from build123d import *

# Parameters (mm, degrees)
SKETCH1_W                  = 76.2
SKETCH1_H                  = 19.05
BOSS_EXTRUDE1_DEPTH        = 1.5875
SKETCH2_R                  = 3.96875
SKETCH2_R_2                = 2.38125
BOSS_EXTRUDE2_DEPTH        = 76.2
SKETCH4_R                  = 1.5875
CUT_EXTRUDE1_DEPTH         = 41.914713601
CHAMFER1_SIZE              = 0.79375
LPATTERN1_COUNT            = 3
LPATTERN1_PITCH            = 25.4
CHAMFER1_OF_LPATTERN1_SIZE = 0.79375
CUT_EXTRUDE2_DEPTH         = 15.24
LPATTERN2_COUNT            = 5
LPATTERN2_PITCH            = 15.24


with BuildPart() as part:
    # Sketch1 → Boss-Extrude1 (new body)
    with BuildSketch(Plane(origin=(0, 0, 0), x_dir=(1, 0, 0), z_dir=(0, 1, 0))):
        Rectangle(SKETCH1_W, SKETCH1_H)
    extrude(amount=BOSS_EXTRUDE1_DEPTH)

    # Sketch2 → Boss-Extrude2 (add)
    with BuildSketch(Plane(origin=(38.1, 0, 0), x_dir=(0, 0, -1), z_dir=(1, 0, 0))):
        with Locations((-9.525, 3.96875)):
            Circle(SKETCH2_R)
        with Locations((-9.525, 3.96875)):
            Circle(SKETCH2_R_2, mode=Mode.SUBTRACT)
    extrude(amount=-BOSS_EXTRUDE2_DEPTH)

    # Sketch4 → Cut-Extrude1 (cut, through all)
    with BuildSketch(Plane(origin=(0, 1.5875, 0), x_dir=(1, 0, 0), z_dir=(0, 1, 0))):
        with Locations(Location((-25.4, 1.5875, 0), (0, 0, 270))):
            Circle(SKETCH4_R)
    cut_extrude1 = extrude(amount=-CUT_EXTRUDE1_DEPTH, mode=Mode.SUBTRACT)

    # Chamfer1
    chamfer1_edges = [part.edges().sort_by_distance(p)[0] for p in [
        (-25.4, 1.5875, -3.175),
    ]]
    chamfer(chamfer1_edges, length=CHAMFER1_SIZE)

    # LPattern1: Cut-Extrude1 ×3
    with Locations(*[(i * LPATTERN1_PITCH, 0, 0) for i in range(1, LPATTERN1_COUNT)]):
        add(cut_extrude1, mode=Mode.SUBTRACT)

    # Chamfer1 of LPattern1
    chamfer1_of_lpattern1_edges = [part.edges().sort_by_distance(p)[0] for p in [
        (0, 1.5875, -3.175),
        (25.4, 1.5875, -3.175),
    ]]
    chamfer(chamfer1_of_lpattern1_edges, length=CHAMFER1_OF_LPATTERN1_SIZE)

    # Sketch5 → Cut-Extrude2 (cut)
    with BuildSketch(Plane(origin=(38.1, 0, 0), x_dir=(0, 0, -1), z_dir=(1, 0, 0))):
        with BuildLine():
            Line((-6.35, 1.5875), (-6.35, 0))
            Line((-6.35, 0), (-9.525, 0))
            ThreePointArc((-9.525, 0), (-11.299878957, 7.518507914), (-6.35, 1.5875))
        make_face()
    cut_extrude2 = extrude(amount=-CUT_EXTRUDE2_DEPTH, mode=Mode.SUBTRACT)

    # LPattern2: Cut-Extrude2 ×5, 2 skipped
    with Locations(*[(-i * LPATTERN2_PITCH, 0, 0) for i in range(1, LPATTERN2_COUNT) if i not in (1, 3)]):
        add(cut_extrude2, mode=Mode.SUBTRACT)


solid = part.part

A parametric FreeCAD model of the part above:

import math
import FreeCAD as App
import Part
import Sketcher
from FreeCAD import Vector
Q = App.Units.Quantity


def edges_at(feature, points):
    """Names of the edges that pass closest to the given points."""
    edges = feature.Shape.Edges
    near = lambda p: min(range(len(edges)), key=lambda i: edges[i].distToShape(Part.Vertex(*p))[0])
    return sorted({f"Edge{near(p) + 1}" for p in points})


def add_polygon(sketch, points):
    """Adds a closed chain of lines whose ends are joined by coincident constraints."""
    first, n = sketch.GeometryCount, len(points)
    for a, b in zip(points, points[1:] + points[:1]):
        sketch.addGeometry(Part.LineSegment(App.Vector(*a, 0), App.Vector(*b, 0)), False)
    for i in range(n):
        sketch.addConstraint(Sketcher.Constraint("Coincident", first + i, 2, first + (i + 1) % n, 1))

doc = App.newDocument("Part")
body = doc.addObject("PartDesign::Body", "Body")

# Sketch on XZ plane
sketch1 = doc.addObject("Sketcher::SketchObject", "Sketch")
body.addObject(sketch1)
sketch1.AttachmentSupport = (doc.XZ_Plane, [""])
sketch1.MapMode = "FlatFace"
add_polygon(sketch1, [(-38, -10), (-38, 10), (38, 10), (38, -10)])  # lines 0-3
sketch1.addConstraint([
    Sketcher.Constraint("Vertical", 0),
    Sketcher.Constraint("Horizontal", 1),
    Sketcher.Constraint("Vertical", 2),
    Sketcher.Constraint("Horizontal", 3),
    Sketcher.Constraint("Symmetric", 0, 2, 2, 2, -1, 1),
    Sketcher.Constraint("DistanceX", 1, 1, 1, 2, Q("3 in")),
    Sketcher.Constraint("DistanceY", 0, 1, 0, 2, Q("0.75 in")),
])
pad1 = doc.addObject("PartDesign::Pad", "Pad")
body.addObject(pad1)
pad1.Profile = sketch1
pad1.Length = Q("0.0625 in")
pad1.Reversed = True

# Sketch on YZ plane
sketch2 = doc.addObject("Sketcher::SketchObject", "Sketch001")
body.addObject(sketch2)
sketch2.AttachmentSupport = (doc.YZ_Plane, [""])
sketch2.MapMode = "FlatFace"
sketch2.AttachmentOffset = App.Placement(Vector(0, 0, 1.5 * 25.4), App.Rotation())
sketch2.addGeometry([
    Part.Circle(Vector(4, 9.5, 0), Vector(0, 0, 1), 4),
    Part.Circle(Vector(4, 9.5, 0), Vector(0, 0, 1), 2.4),
], False)
sketch2.addConstraint([
    Sketcher.Constraint("Coincident", 1, 3, 0, 3),
    Sketcher.Constraint("Diameter", 0, Q("0.3125 in")),
    Sketcher.Constraint("Diameter", 1, Q("0.1875 in")),
    Sketcher.Constraint("DistanceX", -1, 1, 0, 3, Q("0.15625 in")),
    Sketcher.Constraint("DistanceY", -1, 1, 0, 3, Q("0.375 in")),
])
pad2 = doc.addObject("PartDesign::Pad", "Pad001")
body.addObject(pad2)
pad2.Profile = sketch2
pad2.Length = Q("3 in")
pad2.Reversed = True

# Sketch on XZ plane
sketch3 = doc.addObject("Sketcher::SketchObject", "Sketch002")
body.addObject(sketch3)
sketch3.AttachmentSupport = (doc.XZ_Plane, [""])
sketch3.MapMode = "FlatFace"
sketch3.AttachmentOffset = App.Placement(Vector(0, 0, -0.0625 * 25.4), App.Rotation())
sketch3.addGeometry(Part.Circle(Vector(-25.4, -1.6, 0), Vector(0, 0, 1), 1.6), False)
sketch3.addConstraint([
    Sketcher.Constraint("Diameter", 0, Q("0.125 in")),
    Sketcher.Constraint("DistanceX", 0, 3, -1, 1, Q("1 in")),
    Sketcher.Constraint("DistanceY", 0, 3, -1, 1, Q("0.0625 in")),
])
pocket1 = doc.addObject("PartDesign::Pocket", "Pocket")
body.addObject(pocket1)
pocket1.Profile = sketch3
pocket1.Type = "ThroughAll"
pocket1.Reversed = True
doc.recompute()

chamfer = doc.addObject("PartDesign::Chamfer", "Chamfer")
body.addObject(chamfer)
chamfer.Base = (pocket1, edges_at(pocket1, [(-25.4, 1.587, -3.175)]))
chamfer.Size = Q("0.03125 in")
doc.recompute()

linearpattern = doc.addObject("PartDesign::LinearPattern", "LinearPattern")
body.addObject(linearpattern)
linearpattern.Originals = [pocket1]
linearpattern.Direction = (doc.X_Axis, [""])
linearpattern.Mode = "offset"
linearpattern.Offset = Q("1 in")
linearpattern.Occurrences = 3
body.Tip = linearpattern
doc.recompute()

chamfer2 = doc.addObject("PartDesign::Chamfer", "Chamfer001")
body.addObject(chamfer2)
chamfer2.Base = (linearpattern, edges_at(linearpattern, [(0, 1.587, -3.175), (25.4, 1.587, -3.175)]))
chamfer2.Size = Q("0.03125 in")

# Sketch on YZ plane
sketch4 = doc.addObject("Sketcher::SketchObject", "Sketch003")
body.addObject(sketch4)
sketch4.AttachmentSupport = (doc.YZ_Plane, [""])
sketch4.MapMode = "FlatFace"
sketch4.AttachmentOffset = App.Placement(Vector(0, 0, 1.5 * 25.4), App.Rotation())
sketch4.addGeometry([
    Part.LineSegment(Vector(0, 6.3, 0), Vector(1.6, 6.3, 0)),
    Part.ArcOfCircle(Part.Circle(Vector(4, 9.5, 0), Vector(0, 0, 1), 4), math.radians(-127), math.radians(180)),
    Part.LineSegment(Vector(0, 9.5, 0), Vector(0, 6.3, 0)),
], False)
sketch4.addConstraint([
    Sketcher.Constraint("Coincident", 0, 2, 1, 1),
    Sketcher.Constraint("Tangent", 1, 2, 2, 1),
    Sketcher.Constraint("Coincident", 2, 2, 0, 1),
    Sketcher.Constraint("Horizontal", 0),
    Sketcher.Constraint("Vertical", 2),
    Sketcher.Constraint("PointOnObject", 1, 2, -2),
    Sketcher.Constraint("Radius", 1, Q("0.15625 in")),
    Sketcher.Constraint("DistanceX", 0, 1, 0, 2, Q("0.0625 in")),
    Sketcher.Constraint("DistanceY", -1, 1, 0, 2, Q("0.25 in")),
])
pocket2 = doc.addObject("PartDesign::Pocket", "Pocket001")
body.addObject(pocket2)
pocket2.Profile = sketch4
pocket2.Length = Q("0.6 in")
doc.recompute()

linearpattern2 = doc.addObject("PartDesign::LinearPattern", "LinearPattern001")
body.addObject(linearpattern2)
linearpattern2.Originals = [pocket2]
linearpattern2.Direction = (doc.X_Axis, [""])
linearpattern2.Mode = "offset"
linearpattern2.Offset = Q("1.2 in")
linearpattern2.Occurrences = 3
linearpattern2.Reversed = True
body.Tip = linearpattern2

doc.recompute()
